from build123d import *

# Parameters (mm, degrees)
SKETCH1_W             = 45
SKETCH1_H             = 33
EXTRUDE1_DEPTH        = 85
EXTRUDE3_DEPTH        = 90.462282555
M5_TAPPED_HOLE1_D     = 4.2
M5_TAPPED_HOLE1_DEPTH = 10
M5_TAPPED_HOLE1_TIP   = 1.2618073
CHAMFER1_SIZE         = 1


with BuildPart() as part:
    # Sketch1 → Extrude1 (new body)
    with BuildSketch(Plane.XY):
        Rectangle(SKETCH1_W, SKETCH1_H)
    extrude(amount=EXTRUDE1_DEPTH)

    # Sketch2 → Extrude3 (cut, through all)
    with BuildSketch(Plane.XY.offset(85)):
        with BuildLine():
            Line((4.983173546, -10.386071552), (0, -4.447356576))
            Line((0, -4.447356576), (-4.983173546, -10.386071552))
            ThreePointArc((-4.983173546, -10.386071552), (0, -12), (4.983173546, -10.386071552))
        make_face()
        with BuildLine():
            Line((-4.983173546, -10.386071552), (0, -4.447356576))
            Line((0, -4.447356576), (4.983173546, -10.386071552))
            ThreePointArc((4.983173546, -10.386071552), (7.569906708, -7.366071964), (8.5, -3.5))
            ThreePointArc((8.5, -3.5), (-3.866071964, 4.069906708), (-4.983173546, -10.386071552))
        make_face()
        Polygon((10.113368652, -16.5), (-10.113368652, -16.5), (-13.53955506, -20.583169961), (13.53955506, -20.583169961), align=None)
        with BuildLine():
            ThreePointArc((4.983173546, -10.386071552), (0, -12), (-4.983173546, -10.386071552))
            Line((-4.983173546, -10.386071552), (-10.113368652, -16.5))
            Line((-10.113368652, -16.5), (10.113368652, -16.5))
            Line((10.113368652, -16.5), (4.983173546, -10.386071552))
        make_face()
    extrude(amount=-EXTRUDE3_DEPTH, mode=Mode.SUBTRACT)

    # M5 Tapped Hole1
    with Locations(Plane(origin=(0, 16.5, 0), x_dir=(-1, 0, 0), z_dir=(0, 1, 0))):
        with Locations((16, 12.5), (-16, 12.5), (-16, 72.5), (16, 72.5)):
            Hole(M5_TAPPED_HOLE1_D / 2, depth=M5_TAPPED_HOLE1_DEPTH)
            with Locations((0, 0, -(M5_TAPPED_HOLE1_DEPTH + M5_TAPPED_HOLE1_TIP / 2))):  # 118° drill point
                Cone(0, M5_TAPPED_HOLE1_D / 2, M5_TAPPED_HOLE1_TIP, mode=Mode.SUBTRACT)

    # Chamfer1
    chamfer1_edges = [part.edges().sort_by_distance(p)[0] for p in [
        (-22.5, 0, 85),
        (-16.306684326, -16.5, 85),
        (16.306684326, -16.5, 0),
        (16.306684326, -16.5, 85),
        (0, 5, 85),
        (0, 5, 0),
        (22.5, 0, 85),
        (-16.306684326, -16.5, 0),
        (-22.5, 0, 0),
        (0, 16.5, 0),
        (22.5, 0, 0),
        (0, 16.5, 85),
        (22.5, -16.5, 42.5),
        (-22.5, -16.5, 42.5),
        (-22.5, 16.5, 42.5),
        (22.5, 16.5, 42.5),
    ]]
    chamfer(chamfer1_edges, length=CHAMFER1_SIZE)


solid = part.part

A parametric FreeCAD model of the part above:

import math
import FreeCAD as App
import Part
import Sketcher
Q = App.Units.Quantity


def edges_at(feature, points):
    """Names of the edges that pass closest to the given points."""
    edges = feature.Shape.Edges
    near = lambda p: min(range(len(edges)), key=lambda i: edges[i].distToShape(Part.Vertex(*p))[0])
    return sorted({f"Edge{near(p) + 1}" for p in points})

doc = App.newDocument("Part")
params = doc.addObject("Spreadsheet::Sheet", "Params")
for row, (alias, value) in enumerate([
    ("sketch1_width", "45 mm"),
    ("sketch1_height", "33 mm"),
    ("pad1_length", "85 mm"),
    ("sketch2_radius", "8.5 mm"),
    ("sketch3_diameter", "4.2 mm"),
    ("hole_diameter", "4.2 mm"),
    ("hole_depth", "10 mm"),
    ("chamfer_size", "1 mm"),
], start=1):
    params.set(f"A{row}", alias)
    params.set(f"B{row}", "=" + value)
    params.setAlias(f"B{row}", alias)

body = doc.addObject("PartDesign::Body", "Body")

sketch1 = body.newObject("Sketcher::SketchObject", "Sketch")
sketch1.AttachmentSupport = (doc.getObject("XY_Plane"), [""])
sketch1.MapMode = "FlatFace"
sketch1.addGeometry(Part.LineSegment(App.Vector(-22, 16, 0), App.Vector(-22, -16, 0)), False)
sketch1.addGeometry(Part.LineSegment(App.Vector(-22, -16, 0), App.Vector(22, -16, 0)), False)
sketch1.addGeometry(Part.LineSegment(App.Vector(22, -16, 0), App.Vector(22, 16, 0)), False)
sketch1.addGeometry(Part.LineSegment(App.Vector(22, 16, 0), App.Vector(-22, 16, 0)), False)
sketch1.addConstraint(Sketcher.Constraint("Coincident", 0, 2, 1, 1))
sketch1.addConstraint(Sketcher.Constraint("Coincident", 1, 2, 2, 1))
sketch1.addConstraint(Sketcher.Constraint("Coincident", 2, 2, 3, 1))
sketch1.addConstraint(Sketcher.Constraint("Coincident", 3, 2, 0, 1))
sketch1.addConstraint(Sketcher.Constraint("Vertical", 0))
sketch1.addConstraint(Sketcher.Constraint("Horizontal", 1))
sketch1.addConstraint(Sketcher.Constraint("Vertical", 2))
sketch1.addConstraint(Sketcher.Constraint("Horizontal", 3))
sketch1.addConstraint(Sketcher.Constraint("Symmetric", 0, 2, 2, 2, -1, 1))
sketch1.addConstraint(Sketcher.Constraint("DistanceX", 1, 1, 1, 2, 45.0))
sketch1.addConstraint(Sketcher.Constraint("DistanceY", 0, 2, 0, 1, 33.0))
sketch1.setExpression("Constraints[9]", "Params.sketch1_width")
sketch1.setExpression("Constraints[10]", "Params.sketch1_height")
pad1 = body.newObject("PartDesign::Pad", "Pad")
pad1.Profile = sketch1
pad1.setExpression("Length", "Params.pad1_length")

sketch2 = body.newObject("Sketcher::SketchObject", "Sketch001")
sketch2.AttachmentSupport = (doc.getObject("XY_Plane"), [""])
sketch2.MapMode = "FlatFace"
sketch2.AttachmentOffset = App.Placement(App.Vector(0, 0, 85), App.Rotation())
sketch2.addGeometry(Part.ArcOfCircle(Part.Circle(App.Vector(0, -3, 0), App.Vector(0, 0, 1), 9), math.radians(-54), math.radians(0)), False)
sketch2.addGeometry(Part.ArcOfCircle(Part.Circle(App.Vector(0, -4, 0), App.Vector(0, 0, 1), 8), math.radians(0), math.radians(234)), False)
sketch2.addGeometry(Part.LineSegment(App.Vector(-5, -10, 0), App.Vector(-10, -16, 0)), False)
sketch2.addGeometry(Part.LineSegment(App.Vector(-10, -16, 0), App.Vector(-14, -21, 0)), False)
sketch2.addGeometry(Part.LineSegment(App.Vector(-14, -21, 0), App.Vector(14, -21, 0)), False)
sketch2.addGeometry(Part.LineSegment(App.Vector(14, -21, 0), App.Vector(10, -16, 0)), False)
sketch2.addGeometry(Part.LineSegment(App.Vector(10, -16, 0), App.Vector(5, -10, 0)), False)
sketch2.addConstraint(Sketcher.Constraint("Tangent", 0, 2, 1, 1))
sketch2.addConstraint(Sketcher.Constraint("Coincident", 1, 2, 2, 1))
sketch2.addConstraint(Sketcher.Constraint("Coincident", 2, 2, 3, 1))
sketch2.addConstraint(Sketcher.Constraint("Coincident", 3, 2, 4, 1))
sketch2.addConstraint(Sketcher.Constraint("Coincident", 4, 2, 5, 1))
sketch2.addConstraint(Sketcher.Constraint("Coincident", 5, 2, 6, 1))
sketch2.addConstraint(Sketcher.Constraint("Coincident", 6, 2, 0, 1))
sketch2.addConstraint(Sketcher.Constraint("Horizontal", 4))
sketch2.addConstraint(Sketcher.Constraint("Equal", 0, 1))
sketch2.addConstraint(Sketcher.Constraint("Symmetric", 2, 2, 5, 2, -2))
sketch2.addConstraint(Sketcher.Constraint("Symmetric", 1, 2, 6, 2, -2))
sketch2.addConstraint(Sketcher.Constraint("Parallel", 2, 3))
sketch2.addConstraint(Sketcher.Constraint("Parallel", 5, 6))
sketch2.addConstraint(Sketcher.Constraint("Horizontal", 1, 3, 0, 2))
sketch2.addConstraint(Sketcher.Constraint("Radius", 0, 8.5))
sketch2.addConstraint(Sketcher.Constraint("Angle", 2, Q("-130 deg")))
sketch2.addConstraint(Sketcher.Constraint("DistanceY", 2, 2, 0, 3, 13.0))
sketch2.addConstraint(Sketcher.Constraint("DistanceY", 0, 3, -1, 1, 3.5))
sketch2.addConstraint(Sketcher.Constraint("Distance", 3, 5.3302))
sketch2.addConstraint(Sketcher.Constraint("DistanceX", 4, 1, 4, 2, 27.07911))
sketch2.setExpression("Constraints[14]", "Params.sketch2_radius")
pocket1 = body.newObject("PartDesign::Pocket", "Pocket")
pocket1.Profile = sketch2
pocket1.Type = "ThroughAll"

sketch3 = body.newObject("Sketcher::SketchObject", "Sketch002")
sketch3.AttachmentSupport = (doc.getObject("XZ_Plane"), [""])
sketch3.MapMode = "FlatFace"
sketch3.AttachmentOffset = App.Placement(App.Vector(0, 0, -16.5), App.Rotation())
sketch3.addGeometry(Part.Circle(App.Vector(-16, 12.5, 0), App.Vector(0, 0, 1), 2.1), False)
sketch3.addGeometry(Part.Circle(App.Vector(16, 12.5, 0), App.Vector(0, 0, 1), 2.1), False)
sketch3.addGeometry(Part.Circle(App.Vector(16, 72.5, 0), App.Vector(0, 0, 1), 2.1), False)
sketch3.addGeometry(Part.Circle(App.Vector(-16, 72.5, 0), App.Vector(0, 0, 1), 2.1), False)
sketch3.addConstraint(Sketcher.Constraint("Equal", 0, 1))
sketch3.addConstraint(Sketcher.Constraint("Equal", 1, 2))
sketch3.addConstraint(Sketcher.Constraint("Equal", 2, 3))
sketch3.addConstraint(Sketcher.Constraint("Symmetric", 0, 3, 1, 3, -2))
sketch3.addConstraint(Sketcher.Constraint("Symmetric", 2, 3, 3, 3, -2))
sketch3.addConstraint(Sketcher.Constraint("Vertical", 1, 3, 2, 3))
sketch3.addConstraint(Sketcher.Constraint("Diameter", 0, 4.2))
sketch3.addConstraint(Sketcher.Constraint("DistanceX", 0, 3, -1, 1, 16.0))
sketch3.addConstraint(Sketcher.Constraint("DistanceY", 1, 3, 2, 3, 60.0))
sketch3.addConstraint(Sketcher.Constraint("DistanceY", -1, 1, 0, 3, 12.5))
sketch3.setExpression("Constraints[6]", "Params.sketch3_diameter")
doc.recompute()
hole = body.newObject("PartDesign::Hole", "Hole")
hole.Profile = sketch3
hole.ThreadType = "None"
hole.setExpression("Diameter", "Params.hole_diameter")
hole.DepthType = "Dimension"
hole.setExpression("Depth", "Params.hole_depth")
hole.DrillPoint = "Angled"
hole.DrillPointAngle = 118
hole.Reversed = True
doc.recompute()

chamfer = body.newObject("PartDesign::Chamfer", "Chamfer")
chamfer.Base = (hole, edges_at(hole, [
    (-22.5, 0, 85),
    (-16.307, -16.5, 85),
    (16.307, -16.5, 0),
    (16.307, -16.5, 85),
    (-3.866, 4.07, 85),
    (-3.866, 4.07, 0),
    (22.5, 0, 85),
    (-16.307, -16.5, 0),
    (-22.5, 0, 0),
    (0, 16.5, 0),
    (22.5, 0, 0),
    (0, 16.5, 85),
    (22.5, -16.5, 42.5),
    (-22.5, -16.5, 42.5),
    (-22.5, 16.5, 42.5),
    (22.5, 16.5, 42.5),
]))
chamfer.setExpression("Size", "Params.chamfer_size")

doc.recompute()
